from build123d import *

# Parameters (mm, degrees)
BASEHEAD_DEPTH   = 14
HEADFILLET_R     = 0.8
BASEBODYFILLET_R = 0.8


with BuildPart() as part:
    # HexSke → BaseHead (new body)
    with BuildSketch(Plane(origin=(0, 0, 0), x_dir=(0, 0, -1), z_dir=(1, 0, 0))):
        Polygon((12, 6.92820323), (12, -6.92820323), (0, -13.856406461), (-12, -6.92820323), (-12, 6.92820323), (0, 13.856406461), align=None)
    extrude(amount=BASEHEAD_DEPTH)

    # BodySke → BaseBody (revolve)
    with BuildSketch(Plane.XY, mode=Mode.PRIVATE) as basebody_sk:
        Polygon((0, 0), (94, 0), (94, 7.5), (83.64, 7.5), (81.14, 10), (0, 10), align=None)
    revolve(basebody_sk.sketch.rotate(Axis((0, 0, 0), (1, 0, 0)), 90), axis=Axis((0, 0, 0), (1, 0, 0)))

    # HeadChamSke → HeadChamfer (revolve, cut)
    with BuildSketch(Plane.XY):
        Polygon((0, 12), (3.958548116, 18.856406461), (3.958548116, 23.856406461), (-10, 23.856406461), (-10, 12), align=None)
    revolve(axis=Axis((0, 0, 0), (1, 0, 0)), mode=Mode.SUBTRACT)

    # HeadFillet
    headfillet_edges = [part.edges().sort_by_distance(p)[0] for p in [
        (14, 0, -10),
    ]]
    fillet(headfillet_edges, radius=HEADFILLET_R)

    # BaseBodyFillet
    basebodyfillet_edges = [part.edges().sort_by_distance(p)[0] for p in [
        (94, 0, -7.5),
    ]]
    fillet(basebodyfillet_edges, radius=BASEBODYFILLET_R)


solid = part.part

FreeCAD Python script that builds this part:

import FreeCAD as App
import Part
import Sketcher

V = App.Vector
Q = App.Units.Quantity


def edges_at(feature, points):
    """Names of the edges that pass closest to the given points."""
    edges = feature.Shape.Edges
    near = lambda p: min(range(len(edges)), key=lambda i: edges[i].distToShape(Part.Vertex(*p))[0])
    return sorted({f"Edge{near(p) + 1}" for p in points})


def add_polygon(sketch, points):
    """Adds a closed chain of lines whose ends are joined by coincident constraints."""
    first, n = sketch.GeometryCount, len(points)
    for a, b in zip(points, points[1:] + points[:1]):
        sketch.addGeometry(Part.LineSegment(App.Vector(*a, 0), App.Vector(*b, 0)), False)
    for i in range(n):
        sketch.addConstraint(Sketcher.Constraint("Coincident", first + i, 2, first + (i + 1) % n, 1))

doc = App.newDocument("Part")
body = doc.addObject("PartDesign::Body", "Body")

sketch1 = doc.addObject("Sketcher::SketchObject", "Sketch")
body.addObject(sketch1)
sketch1.AttachmentSupport = (doc.YZ_Plane, [""])
sketch1.MapMode = "FlatFace"
add_polygon(sketch1, [(-7, -12), (7, -12), (14, 0), (7, 12), (-7, 12), (-14, 0)])
sketch1.addConstraint([
    Sketcher.Constraint("Horizontal", 0),
    Sketcher.Constraint("Horizontal", 3),
    Sketcher.Constraint("Symmetric", 0, 2, 3, 2, -1, 1),
    Sketcher.Constraint("Symmetric", 1, 2, 4, 2, -1, 1),
    Sketcher.Constraint("PointOnObject", 1, 2, -1),
    Sketcher.Constraint("Parallel", 2, 5),
    Sketcher.Constraint("Vertical", 0, 2, 2, 2),
    Sketcher.Constraint("Angle", 1, Q("60 deg")),
    Sketcher.Constraint("DistanceY", 0, 2, -1, 1, Q("12 mm")),
    Sketcher.Constraint("DistanceX", 0, 1, 0, 2, Q("13.856406 mm")),
])
pad1 = doc.addObject("PartDesign::Pad", "Pad")
body.addObject(pad1)
pad1.Profile = sketch1
pad1.Length = 14

sketch2 = doc.addObject("Sketcher::SketchObject", "Sketch001")
body.addObject(sketch2)
sketch2.AttachmentSupport = (doc.XY_Plane, [""])
sketch2.MapMode = "FlatFace"
add_polygon(sketch2, [(0, 0), (94, 0), (94, 7.5), (83.6, 7.5), (81.1, 10), (0, 10)])
sketch2.addConstraint([
    Sketcher.Constraint("Horizontal", 0),
    Sketcher.Constraint("Vertical", 1),
    Sketcher.Constraint("Horizontal", 2),
    Sketcher.Constraint("Horizontal", 4),
    Sketcher.Constraint("Vertical", 5),
    Sketcher.Constraint("Coincident", 5, 2, -1, 1),
    Sketcher.Constraint("DistanceX", 0, 1, 0, 2, Q("94 mm")),
    Sketcher.Constraint("DistanceY", 5, 2, 5, 1, Q("10 mm")),
    Sketcher.Constraint("Angle", 3, Q("135 deg")),
    Sketcher.Constraint("DistanceY", 1, 1, 1, 2, Q("7.5 mm")),
    Sketcher.Constraint("DistanceX", 2, 2, 2, 1, Q("10.36 mm")),
])
revolution = doc.addObject("PartDesign::Revolution", "Revolution")
body.addObject(revolution)
revolution.Profile = sketch2
revolution.ReferenceAxis = (sketch2, ["H_Axis"])
revolution.Angle = 360

sketch3 = doc.addObject("Sketcher::SketchObject", "Sketch002")
body.addObject(sketch3)
sketch3.AttachmentSupport = (doc.XY_Plane, [""])
sketch3.MapMode = "FlatFace"
add_polygon(sketch3, [(0, 12), (4, 19), (4, 24), (-10, 24), (-10, 12)])
sketch3.addConstraint([
    Sketcher.Constraint("Vertical", 1),
    Sketcher.Constraint("Horizontal", 2),
    Sketcher.Constraint("Vertical", 3),
    Sketcher.Constraint("Horizontal", 4),
    Sketcher.Constraint("PointOnObject", 4, 2, -2),
    Sketcher.Constraint("DistanceX", 4, 1, 4, 2, Q("10 mm")),
    Sketcher.Constraint("DistanceY", 1, 1, 1, 2, Q("5 mm")),
    Sketcher.Constraint("Angle", 0, Q("60 deg")),
    Sketcher.Constraint("DistanceY", -1, 1, 3, 2, Q("12 mm")),
    Sketcher.Constraint("DistanceX", 2, 2, 2, 1, Q("13.958548 mm")),
])
groove = doc.addObject("PartDesign::Groove", "Groove")
body.addObject(groove)
groove.Profile = sketch3
groove.ReferenceAxis = (sketch3, ["H_Axis"])
groove.Angle = 360
doc.recompute()

fillet = doc.addObject("PartDesign::Fillet", "Fillet")
body.addObject(fillet)
fillet.Base = (groove, edges_at(groove, [(14, 0, -10)]))
fillet.Radius = 0.8
doc.recompute()

fillet2 = doc.addObject("PartDesign::Fillet", "Fillet001")
body.addObject(fillet2)
fillet2.Base = (fillet, edges_at(fillet, [(94, 0, -7.5)]))
fillet2.Radius = 0.8

doc.recompute()
